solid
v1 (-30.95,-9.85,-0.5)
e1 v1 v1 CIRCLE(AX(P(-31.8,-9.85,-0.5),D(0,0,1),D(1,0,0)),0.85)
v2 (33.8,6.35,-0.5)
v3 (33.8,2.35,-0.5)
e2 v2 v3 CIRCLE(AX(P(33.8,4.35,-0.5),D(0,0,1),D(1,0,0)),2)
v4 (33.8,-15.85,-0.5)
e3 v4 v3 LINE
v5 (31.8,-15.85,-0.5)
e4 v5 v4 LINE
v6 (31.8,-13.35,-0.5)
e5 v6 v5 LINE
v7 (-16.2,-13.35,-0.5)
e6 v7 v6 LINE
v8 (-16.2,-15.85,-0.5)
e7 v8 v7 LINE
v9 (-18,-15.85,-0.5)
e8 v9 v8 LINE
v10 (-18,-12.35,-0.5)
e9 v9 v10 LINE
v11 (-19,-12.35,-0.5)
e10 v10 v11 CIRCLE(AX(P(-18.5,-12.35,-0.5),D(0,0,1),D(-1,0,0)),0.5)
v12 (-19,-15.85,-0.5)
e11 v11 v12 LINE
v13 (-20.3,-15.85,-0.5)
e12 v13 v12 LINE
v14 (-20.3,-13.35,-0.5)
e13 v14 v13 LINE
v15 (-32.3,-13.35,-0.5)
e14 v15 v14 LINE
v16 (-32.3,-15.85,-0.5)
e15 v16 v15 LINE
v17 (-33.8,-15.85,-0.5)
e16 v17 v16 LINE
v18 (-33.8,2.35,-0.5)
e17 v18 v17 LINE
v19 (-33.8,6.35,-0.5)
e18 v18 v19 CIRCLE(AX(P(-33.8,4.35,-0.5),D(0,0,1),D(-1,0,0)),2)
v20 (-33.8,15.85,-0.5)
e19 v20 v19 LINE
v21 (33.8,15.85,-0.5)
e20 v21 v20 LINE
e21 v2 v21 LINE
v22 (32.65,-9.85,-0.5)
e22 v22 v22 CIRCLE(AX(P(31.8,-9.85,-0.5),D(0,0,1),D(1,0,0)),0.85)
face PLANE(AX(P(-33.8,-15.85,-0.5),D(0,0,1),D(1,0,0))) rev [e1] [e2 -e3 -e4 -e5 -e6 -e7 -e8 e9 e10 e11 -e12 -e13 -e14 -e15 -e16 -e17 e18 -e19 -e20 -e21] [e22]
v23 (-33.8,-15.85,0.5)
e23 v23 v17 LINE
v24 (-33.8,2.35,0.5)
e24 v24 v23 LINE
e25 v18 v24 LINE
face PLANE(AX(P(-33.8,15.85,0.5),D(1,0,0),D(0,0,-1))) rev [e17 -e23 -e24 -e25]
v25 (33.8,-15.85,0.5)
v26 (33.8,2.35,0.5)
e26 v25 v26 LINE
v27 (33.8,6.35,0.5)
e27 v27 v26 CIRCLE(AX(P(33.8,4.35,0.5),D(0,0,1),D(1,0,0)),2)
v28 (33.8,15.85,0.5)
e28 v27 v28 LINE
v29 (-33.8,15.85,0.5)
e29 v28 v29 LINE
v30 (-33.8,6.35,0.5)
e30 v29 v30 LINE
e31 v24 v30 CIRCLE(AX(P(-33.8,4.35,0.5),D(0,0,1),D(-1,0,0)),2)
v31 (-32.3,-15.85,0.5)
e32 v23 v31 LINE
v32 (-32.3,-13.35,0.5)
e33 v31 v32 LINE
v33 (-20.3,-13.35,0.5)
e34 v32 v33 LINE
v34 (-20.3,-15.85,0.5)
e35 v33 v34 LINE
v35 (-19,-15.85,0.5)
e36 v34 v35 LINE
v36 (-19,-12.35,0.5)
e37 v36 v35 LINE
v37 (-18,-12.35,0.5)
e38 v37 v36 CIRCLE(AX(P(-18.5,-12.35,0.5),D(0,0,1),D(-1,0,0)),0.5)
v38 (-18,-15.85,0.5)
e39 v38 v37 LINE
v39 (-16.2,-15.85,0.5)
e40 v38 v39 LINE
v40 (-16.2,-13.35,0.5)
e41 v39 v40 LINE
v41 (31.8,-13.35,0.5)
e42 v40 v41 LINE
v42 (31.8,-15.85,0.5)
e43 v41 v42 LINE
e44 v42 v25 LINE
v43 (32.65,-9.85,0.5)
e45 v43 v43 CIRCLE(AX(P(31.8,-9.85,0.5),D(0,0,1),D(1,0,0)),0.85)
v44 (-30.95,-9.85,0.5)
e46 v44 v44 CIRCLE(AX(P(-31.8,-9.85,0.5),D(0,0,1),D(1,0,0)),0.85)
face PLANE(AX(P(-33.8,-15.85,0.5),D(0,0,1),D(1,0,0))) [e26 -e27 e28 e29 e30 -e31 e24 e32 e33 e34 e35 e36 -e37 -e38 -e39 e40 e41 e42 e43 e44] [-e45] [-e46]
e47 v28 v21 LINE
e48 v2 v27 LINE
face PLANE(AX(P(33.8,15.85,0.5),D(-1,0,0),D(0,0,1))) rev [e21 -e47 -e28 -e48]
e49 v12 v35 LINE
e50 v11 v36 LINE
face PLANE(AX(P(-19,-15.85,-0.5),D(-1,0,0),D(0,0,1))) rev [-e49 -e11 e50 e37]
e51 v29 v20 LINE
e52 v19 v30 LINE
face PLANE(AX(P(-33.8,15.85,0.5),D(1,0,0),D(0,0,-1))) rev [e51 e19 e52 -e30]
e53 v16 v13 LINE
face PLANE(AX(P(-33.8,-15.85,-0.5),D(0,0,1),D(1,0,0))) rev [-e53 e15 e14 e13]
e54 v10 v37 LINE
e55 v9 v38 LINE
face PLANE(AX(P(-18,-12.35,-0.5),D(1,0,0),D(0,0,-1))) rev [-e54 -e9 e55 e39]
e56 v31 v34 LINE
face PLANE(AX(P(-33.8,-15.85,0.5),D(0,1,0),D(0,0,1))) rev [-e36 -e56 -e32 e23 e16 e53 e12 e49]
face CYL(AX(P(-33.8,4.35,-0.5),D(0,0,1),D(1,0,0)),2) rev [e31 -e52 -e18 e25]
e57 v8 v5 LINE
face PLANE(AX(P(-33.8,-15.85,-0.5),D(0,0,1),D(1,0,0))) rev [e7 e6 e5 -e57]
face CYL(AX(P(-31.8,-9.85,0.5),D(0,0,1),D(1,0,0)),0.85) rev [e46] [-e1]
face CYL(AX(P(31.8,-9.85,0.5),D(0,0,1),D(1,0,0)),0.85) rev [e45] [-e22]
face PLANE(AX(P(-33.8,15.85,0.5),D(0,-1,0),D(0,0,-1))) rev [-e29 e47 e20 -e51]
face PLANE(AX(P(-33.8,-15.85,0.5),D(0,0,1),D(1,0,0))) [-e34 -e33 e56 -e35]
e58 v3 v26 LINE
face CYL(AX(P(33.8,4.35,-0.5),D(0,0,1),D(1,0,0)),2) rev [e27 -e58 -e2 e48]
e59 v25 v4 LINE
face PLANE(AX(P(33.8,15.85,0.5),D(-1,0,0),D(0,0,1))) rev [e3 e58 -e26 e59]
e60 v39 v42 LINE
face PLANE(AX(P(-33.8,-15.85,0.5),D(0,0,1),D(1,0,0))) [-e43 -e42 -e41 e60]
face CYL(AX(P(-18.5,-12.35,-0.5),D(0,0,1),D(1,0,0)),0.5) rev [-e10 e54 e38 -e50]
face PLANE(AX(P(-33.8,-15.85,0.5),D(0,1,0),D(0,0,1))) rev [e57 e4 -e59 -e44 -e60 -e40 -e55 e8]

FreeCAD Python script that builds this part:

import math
import FreeCAD as App
import Part
import Sketcher
Q = App.Units.Quantity


def add_polygon(sketch, points):
    """Adds a closed chain of lines whose ends are joined by coincident constraints."""
    first, n = sketch.GeometryCount, len(points)
    for a, b in zip(points, points[1:] + points[:1]):
        sketch.addGeometry(Part.LineSegment(App.Vector(*a, 0), App.Vector(*b, 0)), False)
    for i in range(n):
        sketch.addConstraint(Sketcher.Constraint("Coincident", first + i, 2, first + (i + 1) % n, 1))

doc = App.newDocument("Part")
body = doc.addObject("PartDesign::Body", "Body")

# Sketch on XY plane
sketch1 = body.newObject("Sketcher::SketchObject", "Sketch")
sketch1.AttachmentSupport = (doc.getObject("XY_Plane"), [""])
sketch1.MapMode = "FlatFace"
add_polygon(sketch1, [(-34, 16), (-34, -16), (34, -16), (34, 16)])  # lines 0-3
sketch1.addConstraint([
    Sketcher.Constraint("Vertical", 0),
    Sketcher.Constraint("Horizontal", 1),
    Sketcher.Constraint("Vertical", 2),
    Sketcher.Constraint("Horizontal", 3),
    Sketcher.Constraint("Symmetric", 0, 2, 2, 2, -1, 1),
    Sketcher.Constraint("DistanceX", 1, 1, 1, 2, Q("67.6 mm")),
    Sketcher.Constraint("DistanceY", 0, 2, 0, 1, Q("31.7 mm")),
])
pad1 = body.newObject("PartDesign::Pad", "Pad")
pad1.Profile = sketch1
pad1.Length = 1
pad1.Midplane = True

# Sketch on XY plane
sketch2 = body.newObject("Sketcher::SketchObject", "Sketch001")
sketch2.AttachmentSupport = (doc.getObject("XY_Plane"), [""])
sketch2.MapMode = "FlatFace"
sketch2.AttachmentOffset = App.Placement(App.Vector(0, 0, 0.5), App.Rotation())
sketch2.addGeometry([
    Part.LineSegment(App.Vector(-33.8, 6.3, 0), App.Vector(-33.8, 2.4, 0)),
    Part.ArcOfCircle(Part.Circle(App.Vector(-33.8, 4.3, 0), App.Vector(0, 0, 1), 2), math.radians(-90), math.radians(90)),
    Part.LineSegment(App.Vector(33.8, 2.4, 0), App.Vector(33.8, 6.3, 0)),
    Part.ArcOfCircle(Part.Circle(App.Vector(33.8, 4.3, 0), App.Vector(0, 0, 1), 2), math.radians(90), math.radians(270)),
], False)
sketch2.addConstraint([
    Sketcher.Constraint("Coincident", 0, 1, 1, 2),
    Sketcher.Constraint("Coincident", 1, 1, 0, 2),
    Sketcher.Constraint("Coincident", 2, 1, 3, 2),
    Sketcher.Constraint("Coincident", 3, 1, 2, 2),
    Sketcher.Constraint("Vertical", 0),
    Sketcher.Constraint("Vertical", 2),
    Sketcher.Constraint("Equal", 1, 3),
    Sketcher.Constraint("Symmetric", 1, 3, 3, 3, -2),
    Sketcher.Constraint("Vertical", 1, 3, 0, 1),
    Sketcher.Constraint("Vertical", 3, 3, 2, 1),
    Sketcher.Constraint("Radius", 1, Q("2 mm")),
    Sketcher.Constraint("DistanceX", 1, 3, -1, 1, Q("33.8 mm")),
    Sketcher.Constraint("DistanceY", -1, 1, 1, 3, Q("4.35 mm")),
])
pocket1 = body.newObject("PartDesign::Pocket", "Pocket")
pocket1.Profile = sketch2
pocket1.Type = "ThroughAll"

# Sketch on XY plane
sketch3 = body.newObject("Sketcher::SketchObject", "Sketch002")
sketch3.AttachmentSupport = (doc.getObject("XY_Plane"), [""])
sketch3.MapMode = "FlatFace"
sketch3.AttachmentOffset = App.Placement(App.Vector(0, 0, 0.5), App.Rotation())
sketch3.addGeometry([
    Part.Circle(App.Vector(-31.8, -9.8, 0), App.Vector(0, 0, 1), 0.8),
    Part.Circle(App.Vector(31.8, -9.8, 0), App.Vector(0, 0, 1), 0.8),
], False)
sketch3.addConstraint([
    Sketcher.Constraint("Equal", 0, 1),
    Sketcher.Constraint("Symmetric", 0, 3, 1, 3, -2),
    Sketcher.Constraint("Diameter", 0, Q("1.7 mm")),
    Sketcher.Constraint("DistanceX", 0, 3, -1, 1, Q("31.8 mm")),
    Sketcher.Constraint("DistanceY", 0, 3, -1, 1, Q("9.85 mm")),
])
doc.recompute()
hole = body.newObject("PartDesign::Hole", "Hole")
hole.Profile = sketch3
hole.ThreadType = "None"
hole.Diameter = 1.7
hole.DepthType = "ThroughAll"

# Sketch on XY plane
sketch4 = body.newObject("Sketcher::SketchObject", "Sketch003")
sketch4.AttachmentSupport = (doc.getObject("XY_Plane"), [""])
sketch4.MapMode = "FlatFace"
sketch4.AttachmentOffset = App.Placement(App.Vector(0, 0, 0.5), App.Rotation())
sketch4.addGeometry([
    Part.LineSegment(App.Vector(-19, -12.3, 0), App.Vector(-19, -15.8, 0)),
    Part.LineSegment(App.Vector(-19, -15.8, 0), App.Vector(-18, -15.8, 0)),
    Part.LineSegment(App.Vector(-18, -15.8, 0), App.Vector(-18, -12.3, 0)),
    Part.ArcOfCircle(Part.Circle(App.Vector(-18.5, -12.3, 0), App.Vector(0, 0, 1), 0.5), math.radians(0), math.radians(180)),
], False)
sketch4.addConstraint([
    Sketcher.Constraint("Coincident", 0, 2, 1, 1),
    Sketcher.Constraint("Coincident", 1, 2, 2, 1),
    Sketcher.Constraint("Tangent", 2, 2, 3, 1),
    Sketcher.Constraint("Tangent", 3, 2, 0, 1),
    Sketcher.Constraint("Vertical", 0),
    Sketcher.Constraint("Horizontal", 1),
    Sketcher.Constraint("Vertical", 2),
    Sketcher.Constraint("Radius", 3, Q("0.5 mm")),
    Sketcher.Constraint("DistanceY", 0, 2, 0, 1, Q("3.5 mm")),
    Sketcher.Constraint("DistanceX", 0, 2, -1, 1, Q("19 mm")),
    Sketcher.Constraint("DistanceY", 3, 3, -1, 1, Q("12.35 mm")),
])
pocket2 = body.newObject("PartDesign::Pocket", "Pocket001")
pocket2.Profile = sketch4
pocket2.Type = "ThroughAll"

doc.recompute()
